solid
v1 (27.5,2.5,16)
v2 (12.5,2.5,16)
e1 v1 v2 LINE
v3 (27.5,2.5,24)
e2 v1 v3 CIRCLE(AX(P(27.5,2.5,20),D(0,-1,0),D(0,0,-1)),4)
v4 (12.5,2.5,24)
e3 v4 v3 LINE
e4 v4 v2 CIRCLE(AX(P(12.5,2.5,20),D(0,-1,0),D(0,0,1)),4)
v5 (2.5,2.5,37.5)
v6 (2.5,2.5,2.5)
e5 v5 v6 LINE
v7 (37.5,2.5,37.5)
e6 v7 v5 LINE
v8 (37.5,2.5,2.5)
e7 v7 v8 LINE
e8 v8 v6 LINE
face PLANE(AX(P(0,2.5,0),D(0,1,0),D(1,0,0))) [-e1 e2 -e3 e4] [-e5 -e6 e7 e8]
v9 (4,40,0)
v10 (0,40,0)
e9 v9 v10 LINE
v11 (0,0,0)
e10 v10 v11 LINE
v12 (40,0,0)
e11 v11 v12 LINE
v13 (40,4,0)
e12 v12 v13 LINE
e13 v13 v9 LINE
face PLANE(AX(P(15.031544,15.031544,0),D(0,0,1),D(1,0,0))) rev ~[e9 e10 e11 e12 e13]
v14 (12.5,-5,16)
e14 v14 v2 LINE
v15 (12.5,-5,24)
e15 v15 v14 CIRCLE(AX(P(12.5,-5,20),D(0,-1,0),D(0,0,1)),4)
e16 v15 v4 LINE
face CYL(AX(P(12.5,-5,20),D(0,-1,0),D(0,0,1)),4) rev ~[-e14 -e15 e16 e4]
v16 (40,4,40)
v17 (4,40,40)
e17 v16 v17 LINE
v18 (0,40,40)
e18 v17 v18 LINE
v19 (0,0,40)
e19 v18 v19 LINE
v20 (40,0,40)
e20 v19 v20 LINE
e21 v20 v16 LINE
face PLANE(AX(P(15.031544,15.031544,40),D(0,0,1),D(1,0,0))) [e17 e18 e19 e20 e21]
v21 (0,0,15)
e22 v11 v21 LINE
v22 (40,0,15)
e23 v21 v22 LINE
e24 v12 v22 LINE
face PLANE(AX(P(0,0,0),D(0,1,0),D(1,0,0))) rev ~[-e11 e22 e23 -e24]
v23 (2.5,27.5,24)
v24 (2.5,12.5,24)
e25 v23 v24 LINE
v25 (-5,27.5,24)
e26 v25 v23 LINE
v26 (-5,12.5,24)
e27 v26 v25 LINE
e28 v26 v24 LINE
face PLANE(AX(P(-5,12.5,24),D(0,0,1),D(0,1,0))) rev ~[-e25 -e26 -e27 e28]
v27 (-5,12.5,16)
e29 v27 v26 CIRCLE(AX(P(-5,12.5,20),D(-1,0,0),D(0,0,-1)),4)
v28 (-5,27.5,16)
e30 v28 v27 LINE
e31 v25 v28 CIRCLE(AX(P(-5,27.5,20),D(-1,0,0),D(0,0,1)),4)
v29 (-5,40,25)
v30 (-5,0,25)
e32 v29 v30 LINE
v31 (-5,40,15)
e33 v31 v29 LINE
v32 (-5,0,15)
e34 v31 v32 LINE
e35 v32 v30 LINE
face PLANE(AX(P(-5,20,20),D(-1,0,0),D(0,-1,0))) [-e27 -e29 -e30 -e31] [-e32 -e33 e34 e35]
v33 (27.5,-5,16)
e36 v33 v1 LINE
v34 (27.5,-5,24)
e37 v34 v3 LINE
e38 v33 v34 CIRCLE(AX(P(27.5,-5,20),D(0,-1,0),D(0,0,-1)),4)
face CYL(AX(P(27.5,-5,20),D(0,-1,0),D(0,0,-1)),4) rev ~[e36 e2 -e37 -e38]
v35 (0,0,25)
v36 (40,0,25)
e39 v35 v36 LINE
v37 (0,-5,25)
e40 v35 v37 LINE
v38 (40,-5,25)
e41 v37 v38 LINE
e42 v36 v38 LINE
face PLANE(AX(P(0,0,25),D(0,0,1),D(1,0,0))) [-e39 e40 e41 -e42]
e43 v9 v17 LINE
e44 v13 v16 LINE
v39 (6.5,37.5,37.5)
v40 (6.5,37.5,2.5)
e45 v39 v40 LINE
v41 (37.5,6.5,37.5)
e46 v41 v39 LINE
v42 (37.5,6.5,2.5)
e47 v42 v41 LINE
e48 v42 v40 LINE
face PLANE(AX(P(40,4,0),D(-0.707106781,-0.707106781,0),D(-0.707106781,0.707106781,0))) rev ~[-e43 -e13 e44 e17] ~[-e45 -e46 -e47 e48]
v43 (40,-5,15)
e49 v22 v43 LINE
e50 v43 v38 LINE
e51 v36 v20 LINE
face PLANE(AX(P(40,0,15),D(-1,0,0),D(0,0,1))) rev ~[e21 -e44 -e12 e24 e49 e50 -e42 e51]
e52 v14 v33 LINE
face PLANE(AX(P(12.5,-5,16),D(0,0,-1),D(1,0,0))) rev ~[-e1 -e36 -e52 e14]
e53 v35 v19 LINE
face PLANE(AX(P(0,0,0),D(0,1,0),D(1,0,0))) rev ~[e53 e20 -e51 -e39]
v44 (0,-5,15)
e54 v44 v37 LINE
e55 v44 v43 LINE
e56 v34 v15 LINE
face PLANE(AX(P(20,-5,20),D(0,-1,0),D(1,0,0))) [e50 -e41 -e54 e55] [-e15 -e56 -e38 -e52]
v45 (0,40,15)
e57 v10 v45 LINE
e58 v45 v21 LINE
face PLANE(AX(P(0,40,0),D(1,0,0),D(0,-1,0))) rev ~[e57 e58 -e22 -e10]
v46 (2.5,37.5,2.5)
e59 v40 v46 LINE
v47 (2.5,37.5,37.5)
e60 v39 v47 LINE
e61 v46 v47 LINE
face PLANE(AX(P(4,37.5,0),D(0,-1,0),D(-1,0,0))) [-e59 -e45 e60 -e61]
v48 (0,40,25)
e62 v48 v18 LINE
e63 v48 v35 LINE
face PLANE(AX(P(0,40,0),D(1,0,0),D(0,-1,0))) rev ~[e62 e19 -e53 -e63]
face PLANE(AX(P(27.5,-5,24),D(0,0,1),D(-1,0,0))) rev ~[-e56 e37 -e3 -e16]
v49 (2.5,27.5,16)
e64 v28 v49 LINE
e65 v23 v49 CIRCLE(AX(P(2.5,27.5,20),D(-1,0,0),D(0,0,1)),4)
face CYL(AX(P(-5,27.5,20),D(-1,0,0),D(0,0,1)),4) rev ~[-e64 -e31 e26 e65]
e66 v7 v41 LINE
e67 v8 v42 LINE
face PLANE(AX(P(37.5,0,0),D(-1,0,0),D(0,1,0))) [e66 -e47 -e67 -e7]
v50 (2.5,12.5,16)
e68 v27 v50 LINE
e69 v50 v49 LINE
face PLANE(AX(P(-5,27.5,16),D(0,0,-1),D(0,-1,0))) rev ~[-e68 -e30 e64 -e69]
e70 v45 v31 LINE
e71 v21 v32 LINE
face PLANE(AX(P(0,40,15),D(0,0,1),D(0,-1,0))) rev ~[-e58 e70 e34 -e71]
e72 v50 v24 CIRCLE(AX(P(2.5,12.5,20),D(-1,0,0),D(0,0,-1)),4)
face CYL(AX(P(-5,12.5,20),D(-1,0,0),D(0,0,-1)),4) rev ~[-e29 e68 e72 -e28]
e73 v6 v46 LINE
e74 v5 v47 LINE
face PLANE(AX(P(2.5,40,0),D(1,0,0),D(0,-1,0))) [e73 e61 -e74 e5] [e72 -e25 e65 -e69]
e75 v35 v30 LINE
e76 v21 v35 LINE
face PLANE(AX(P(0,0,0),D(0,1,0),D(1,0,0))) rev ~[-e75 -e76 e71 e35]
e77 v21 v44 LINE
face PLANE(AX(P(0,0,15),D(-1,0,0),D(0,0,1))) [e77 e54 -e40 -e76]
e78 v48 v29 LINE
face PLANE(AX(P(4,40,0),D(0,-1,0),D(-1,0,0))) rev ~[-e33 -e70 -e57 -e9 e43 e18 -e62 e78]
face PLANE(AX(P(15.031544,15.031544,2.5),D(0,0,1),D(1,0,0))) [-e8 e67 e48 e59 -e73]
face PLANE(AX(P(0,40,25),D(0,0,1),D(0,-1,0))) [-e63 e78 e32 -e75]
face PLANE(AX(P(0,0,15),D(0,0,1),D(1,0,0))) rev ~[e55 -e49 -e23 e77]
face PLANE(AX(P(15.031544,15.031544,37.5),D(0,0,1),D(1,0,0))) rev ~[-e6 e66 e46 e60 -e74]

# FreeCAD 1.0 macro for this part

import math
import FreeCAD as App
import Part
import Sketcher


def faces_at(feature, points):
    """Names of the faces that lie closest to the given points."""
    faces = feature.Shape.Faces
    near = lambda p: min(range(len(faces)), key=lambda i: faces[i].distToShape(Part.Vertex(*p))[0])
    return sorted({f"Face{near(p) + 1}" for p in points})


def add_polygon(sketch, points):
    """Adds a closed chain of lines whose ends are joined by coincident constraints."""
    first, n = sketch.GeometryCount, len(points)
    for a, b in zip(points, points[1:] + points[:1]):
        sketch.addGeometry(Part.LineSegment(App.Vector(*a, 0), App.Vector(*b, 0)), False)
    for i in range(n):
        sketch.addConstraint(Sketcher.Constraint("Coincident", first + i, 2, first + (i + 1) % n, 1))

doc = App.newDocument("Part")
body = doc.addObject("PartDesign::Body", "Body")

# Sketch on XY plane
sketch1 = doc.addObject("Sketcher::SketchObject", "Sketch")
body.addObject(sketch1)
sketch1.AttachmentSupport = (doc.XY_Plane, [""])
sketch1.MapMode = "FlatFace"
add_polygon(sketch1, [(4, 40), (0, 40), (0, 0), (40, 0), (40, 4)])  # lines 0-4
sketch1.addConstraint(Sketcher.Constraint("Horizontal", 0))
sketch1.addConstraint(Sketcher.Constraint("Vertical", 1))
sketch1.addConstraint(Sketcher.Constraint("Horizontal", 2))
sketch1.addConstraint(Sketcher.Constraint("Vertical", 3))
sketch1.addConstraint(Sketcher.Constraint("Coincident", 1, 2, -1, 1))
sketch1.addConstraint(Sketcher.Constraint("Equal", 2, 1))
sketch1.addConstraint(Sketcher.Constraint("Equal", 0, 3))
sketch1.addConstraint(Sketcher.Constraint("DistanceX", 0, 2, 0, 1, 4.0))
sketch1.addConstraint(Sketcher.Constraint("DistanceX", 2, 1, 2, 2, 40.0))
pad1 = doc.addObject("PartDesign::Pad", "Pad")
body.addObject(pad1)
pad1.Profile = sketch1
pad1.Length = 40
doc.recompute()

thickness = doc.addObject("PartDesign::Thickness", "Thickness")
body.addObject(thickness)
thickness.Base = (pad1, faces_at(pad1, [(22, 22, 20)]))
thickness.Value = 2.5
thickness.Reversed = True
thickness.Join = "Arc"

# Sketch on YZ plane
sketch2 = doc.addObject("Sketcher::SketchObject", "Sketch001")
body.addObject(sketch2)
sketch2.AttachmentSupport = (doc.YZ_Plane, [""])
sketch2.MapMode = "FlatFace"
add_polygon(sketch2, [(40, 25), (40, 15), (0, 15), (0, 25)])  # lines 0-3
sketch2.addConstraint(Sketcher.Constraint("Vertical", 0))
sketch2.addConstraint(Sketcher.Constraint("Horizontal", 1))
sketch2.addConstraint(Sketcher.Constraint("Vertical", 2))
sketch2.addConstraint(Sketcher.Constraint("Horizontal", 3))
sketch2.addConstraint(Sketcher.Constraint("PointOnObject", 1, 2, -2))
sketch2.addConstraint(Sketcher.Constraint("DistanceX", 1, 2, 1, 1, 40.0))
sketch2.addConstraint(Sketcher.Constraint("DistanceY", 0, 2, 0, 1, 10.0))
sketch2.addConstraint(Sketcher.Constraint("DistanceY", -1, 1, 0, 2, 15.0))
pad2 = doc.addObject("PartDesign::Pad", "Pad001")
body.addObject(pad2)
pad2.Profile = sketch2
pad2.Length = 5
pad2.Reversed = True

# Sketch on XZ plane
sketch3 = doc.addObject("Sketcher::SketchObject", "Sketch002")
body.addObject(sketch3)
sketch3.AttachmentSupport = (doc.XZ_Plane, [""])
sketch3.MapMode = "FlatFace"
add_polygon(sketch3, [(0, 25), (0, 15), (40, 15), (40, 25)])  # lines 0-3
sketch3.addConstraint(Sketcher.Constraint("Vertical", 0))
sketch3.addConstraint(Sketcher.Constraint("Horizontal", 1))
sketch3.addConstraint(Sketcher.Constraint("Vertical", 2))
sketch3.addConstraint(Sketcher.Constraint("Horizontal", 3))
sketch3.addConstraint(Sketcher.Constraint("PointOnObject", 0, 2, -2))
sketch3.addConstraint(Sketcher.Constraint("DistanceX", 1, 1, 1, 2, 40.0))
sketch3.addConstraint(Sketcher.Constraint("DistanceY", 0, 2, 0, 1, 10.0))
sketch3.addConstraint(Sketcher.Constraint("DistanceY", -1, 1, 0, 2, 15.0))
pad3 = doc.addObject("PartDesign::Pad", "Pad002")
body.addObject(pad3)
pad3.Profile = sketch3
pad3.Length = 5

# Sketch on XZ plane
sketch4 = doc.addObject("Sketcher::SketchObject", "Sketch003")
body.addObject(sketch4)
sketch4.AttachmentSupport = (doc.XZ_Plane, [""])
sketch4.MapMode = "FlatFace"
sketch4.AttachmentOffset = App.Placement(App.Vector(0, 0, 5), App.Rotation())
sketch4.addGeometry(Part.LineSegment(App.Vector(27.5, 24, 0), App.Vector(12.5, 24, 0)), False)
sketch4.addGeometry(Part.ArcOfCircle(Part.Circle(App.Vector(12.5, 20, 0), App.Vector(0, 0, 1), 4), math.radians(90), math.radians(270)), False)
sketch4.addGeometry(Part.LineSegment(App.Vector(12.5, 16, 0), App.Vector(27.5, 16, 0)), False)
sketch4.addGeometry(Part.ArcOfCircle(Part.Circle(App.Vector(27.5, 20, 0), App.Vector(0, 0, 1), 4), math.radians(-90), math.radians(90)), False)
sketch4.addConstraint(Sketcher.Constraint("Tangent", 0, 2, 1, 1))
sketch4.addConstraint(Sketcher.Constraint("Tangent", 1, 2, 2, 1))
sketch4.addConstraint(Sketcher.Constraint("Tangent", 2, 2, 3, 1))
sketch4.addConstraint(Sketcher.Constraint("Tangent", 3, 2, 0, 1))
sketch4.addConstraint(Sketcher.Constraint("Horizontal", 0))
sketch4.addConstraint(Sketcher.Constraint("Horizontal", 2))
sketch4.addConstraint(Sketcher.Constraint("Radius", 1, 4.0))
sketch4.addConstraint(Sketcher.Constraint("DistanceX", 0, 2, 0, 1, 15.0))
sketch4.addConstraint(Sketcher.Constraint("DistanceY", -1, 1, 1, 3, 20.0))
sketch4.addConstraint(Sketcher.Constraint("DistanceX", -1, 1, 1, 3, 12.5))
pocket1 = doc.addObject("PartDesign::Pocket", "Pocket")
body.addObject(pocket1)
pocket1.Profile = sketch4
pocket1.Type = "ThroughAll"

# Sketch on YZ plane
sketch5 = doc.addObject("Sketcher::SketchObject", "Sketch004")
body.addObject(sketch5)
sketch5.AttachmentSupport = (doc.YZ_Plane, [""])
sketch5.MapMode = "FlatFace"
sketch5.AttachmentOffset = App.Placement(App.Vector(0, 0, -5), App.Rotation())
sketch5.addGeometry(Part.ArcOfCircle(Part.Circle(App.Vector(27.5, 20, 0), App.Vector(0, 0, 1), 4), math.radians(-90), math.radians(90)), False)
sketch5.addGeometry(Part.LineSegment(App.Vector(27.5, 16, 0), App.Vector(12.5, 16, 0)), False)
sketch5.addGeometry(Part.ArcOfCircle(Part.Circle(App.Vector(12.5, 20, 0), App.Vector(0, 0, 1), 4), math.radians(90), math.radians(270)), False)
sketch5.addGeometry(Part.LineSegment(App.Vector(12.5, 24, 0), App.Vector(27.5, 24, 0)), False)
sketch5.addConstraint(Sketcher.Constraint("Tangent", 0, 1, 1, 1))
sketch5.addConstraint(Sketcher.Constraint("Tangent", 1, 2, 2, 2))
sketch5.addConstraint(Sketcher.Constraint("Tangent", 2, 1, 3, 1))
sketch5.addConstraint(Sketcher.Constraint("Tangent", 3, 2, 0, 2))
sketch5.addConstraint(Sketcher.Constraint("Horizontal", 1))
sketch5.addConstraint(Sketcher.Constraint("Horizontal", 3))
sketch5.addConstraint(Sketcher.Constraint("Radius", 0, 4.0))
sketch5.addConstraint(Sketcher.Constraint("DistanceX", 1, 2, 1, 1, 15.0))
sketch5.addConstraint(Sketcher.Constraint("DistanceY", -1, 1, 0, 3, 20.0))
sketch5.addConstraint(Sketcher.Constraint("DistanceX", -1, 1, 0, 3, 27.5))
pocket2 = doc.addObject("PartDesign::Pocket", "Pocket001")
body.addObject(pocket2)
pocket2.Profile = sketch5
pocket2.Type = "ThroughAll"
pocket2.Reversed = True

doc.recompute()
